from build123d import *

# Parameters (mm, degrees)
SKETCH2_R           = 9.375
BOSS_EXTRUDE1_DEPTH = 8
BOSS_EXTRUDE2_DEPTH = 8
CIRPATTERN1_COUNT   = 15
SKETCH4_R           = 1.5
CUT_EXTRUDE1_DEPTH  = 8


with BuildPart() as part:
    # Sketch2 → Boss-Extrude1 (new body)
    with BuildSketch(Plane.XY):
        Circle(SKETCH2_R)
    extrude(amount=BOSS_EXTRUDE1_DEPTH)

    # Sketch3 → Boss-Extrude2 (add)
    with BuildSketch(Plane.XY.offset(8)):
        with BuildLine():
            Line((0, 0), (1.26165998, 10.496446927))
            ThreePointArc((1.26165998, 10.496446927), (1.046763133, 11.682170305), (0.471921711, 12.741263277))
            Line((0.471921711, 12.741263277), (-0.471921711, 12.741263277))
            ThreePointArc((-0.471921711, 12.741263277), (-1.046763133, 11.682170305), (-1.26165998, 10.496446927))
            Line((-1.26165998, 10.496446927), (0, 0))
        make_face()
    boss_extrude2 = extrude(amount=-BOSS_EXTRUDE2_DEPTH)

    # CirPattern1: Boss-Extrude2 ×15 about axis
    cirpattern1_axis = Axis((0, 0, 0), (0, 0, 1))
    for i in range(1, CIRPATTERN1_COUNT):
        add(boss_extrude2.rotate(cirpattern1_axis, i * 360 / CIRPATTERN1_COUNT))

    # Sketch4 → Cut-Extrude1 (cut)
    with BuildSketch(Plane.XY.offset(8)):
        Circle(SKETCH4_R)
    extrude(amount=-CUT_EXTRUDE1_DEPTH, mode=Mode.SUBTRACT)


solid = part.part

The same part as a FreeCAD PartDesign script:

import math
import FreeCAD as App
import Part
import Sketcher
Q = App.Units.Quantity

doc = App.newDocument("Part")
params = doc.addObject("Spreadsheet::Sheet", "Params")
for row, (alias, value) in enumerate([
    ("sketch1_diameter", "18.75 mm"),
    ("pad1_length", "8 mm"),
    ("pad2_length", "8 mm"),
    ("sketch3_diameter", "3 mm"),
    ("pocket1_length", "8 mm"),
], start=1):
    params.set(f"A{row}", alias)
    params.set(f"B{row}", "=" + value)
    params.setAlias(f"B{row}", alias)

body = doc.addObject("PartDesign::Body", "Body")

# Sketch on XY plane
sketch1 = doc.addObject("Sketcher::SketchObject", "Sketch")
body.addObject(sketch1)
sketch1.AttachmentSupport = (doc.XY_Plane, [""])
sketch1.MapMode = "FlatFace"
sketch1.addGeometry(Part.Circle(App.Vector(0, 0, 0), App.Vector(0, 0, 1), 9.375), False)
sketch1.addConstraint(Sketcher.Constraint("Coincident", 0, 3, -1, 1))
sketch1.addConstraint(Sketcher.Constraint("Diameter", 0, Q("18.75 mm")))
sketch1.setExpression("Constraints[1]", "Params.sketch1_diameter")
pad1 = doc.addObject("PartDesign::Pad", "Pad")
body.addObject(pad1)
pad1.Profile = sketch1
pad1.setExpression("Length", "Params.pad1_length")

# Sketch on XY plane
sketch2 = doc.addObject("Sketcher::SketchObject", "Sketch001")
body.addObject(sketch2)
sketch2.AttachmentSupport = (doc.XY_Plane, [""])
sketch2.MapMode = "FlatFace"
sketch2.AttachmentOffset = App.Placement(App.Vector(0, 0, 8), App.Rotation())
sketch2.addGeometry(Part.LineSegment(App.Vector(0, 0, 0), App.Vector(1.26166, 10.496447, 0)), False)
sketch2.addGeometry(Part.ArcOfCircle(Part.Circle(App.Vector(-2.543207, 10.4192, 0), App.Vector(0, 0, 1), 3.805651), math.radians(1.163068), math.radians(37.601216)), False)
sketch2.addGeometry(Part.LineSegment(App.Vector(0.471922, 12.741263, 0), App.Vector(-0.471922, 12.741263, 0)), False)
sketch2.addGeometry(Part.ArcOfCircle(Part.Circle(App.Vector(2.543207, 10.4192, 0), App.Vector(0, 0, 1), 3.805651), math.radians(142.398784), math.radians(178.836932)), False)
sketch2.addGeometry(Part.LineSegment(App.Vector(-1.26166, 10.496447, 0), App.Vector(0, 0, 0)), False)
sketch2.addConstraint(Sketcher.Constraint("Coincident", 0, 2, 1, 1))
sketch2.addConstraint(Sketcher.Constraint("Coincident", 1, 2, 2, 1))
sketch2.addConstraint(Sketcher.Constraint("Coincident", 2, 2, 3, 1))
sketch2.addConstraint(Sketcher.Constraint("Coincident", 3, 2, 4, 1))
sketch2.addConstraint(Sketcher.Constraint("Coincident", 4, 2, 0, 1))
sketch2.addConstraint(Sketcher.Constraint("Horizontal", 2))
sketch2.addConstraint(Sketcher.Constraint("Coincident", 4, 2, -1, 1))
sketch2.addConstraint(Sketcher.Constraint("Equal", 1, 3))
sketch2.addConstraint(Sketcher.Constraint("Symmetric", 1, 3, 3, 3, -2))
sketch2.addConstraint(Sketcher.Constraint("Horizontal", 0, 2, 3, 2))
sketch2.addConstraint(Sketcher.Constraint("Radius", 1, Q("3.805651 mm")))
sketch2.addConstraint(Sketcher.Constraint("Distance", 0, Q("10.572 mm")))
sketch2.addConstraint(Sketcher.Constraint("DistanceY", -1, 1, 1, 3, Q("10.4192 mm")))
sketch2.addConstraint(Sketcher.Constraint("DistanceX", 2, 2, 2, 1, Q("0.943843 mm")))
sketch2.addConstraint(Sketcher.Constraint("DistanceX", -1, 1, 0, 2, Q("1.26166 mm")))
pad2 = doc.addObject("PartDesign::Pad", "Pad001")
body.addObject(pad2)
pad2.Profile = sketch2
pad2.setExpression("Length", "Params.pad2_length")
pad2.Reversed = True
doc.recompute()

polarpattern = doc.addObject("PartDesign::PolarPattern", "PolarPattern")
body.addObject(polarpattern)
polarpattern.Originals = [pad2]
polarpattern.Axis = (doc.Z_Axis, [""])
polarpattern.Angle = 360
polarpattern.Occurrences = 15
body.Tip = polarpattern

# Sketch on XY plane
sketch3 = doc.addObject("Sketcher::SketchObject", "Sketch002")
body.addObject(sketch3)
sketch3.AttachmentSupport = (doc.XY_Plane, [""])
sketch3.MapMode = "FlatFace"
sketch3.AttachmentOffset = App.Placement(App.Vector(0, 0, 8), App.Rotation())
sketch3.addGeometry(Part.Circle(App.Vector(0, 0, 0), App.Vector(0, 0, 1), 1.5), False)
sketch3.addConstraint(Sketcher.Constraint("Coincident", 0, 3, -1, 1))
sketch3.addConstraint(Sketcher.Constraint("Diameter", 0, Q("3 mm")))
sketch3.setExpression("Constraints[1]", "Params.sketch3_diameter")
pocket1 = doc.addObject("PartDesign::Pocket", "Pocket")
body.addObject(pocket1)
pocket1.Profile = sketch3
pocket1.setExpression("Length", "Params.pocket1_length")

doc.recompute()
